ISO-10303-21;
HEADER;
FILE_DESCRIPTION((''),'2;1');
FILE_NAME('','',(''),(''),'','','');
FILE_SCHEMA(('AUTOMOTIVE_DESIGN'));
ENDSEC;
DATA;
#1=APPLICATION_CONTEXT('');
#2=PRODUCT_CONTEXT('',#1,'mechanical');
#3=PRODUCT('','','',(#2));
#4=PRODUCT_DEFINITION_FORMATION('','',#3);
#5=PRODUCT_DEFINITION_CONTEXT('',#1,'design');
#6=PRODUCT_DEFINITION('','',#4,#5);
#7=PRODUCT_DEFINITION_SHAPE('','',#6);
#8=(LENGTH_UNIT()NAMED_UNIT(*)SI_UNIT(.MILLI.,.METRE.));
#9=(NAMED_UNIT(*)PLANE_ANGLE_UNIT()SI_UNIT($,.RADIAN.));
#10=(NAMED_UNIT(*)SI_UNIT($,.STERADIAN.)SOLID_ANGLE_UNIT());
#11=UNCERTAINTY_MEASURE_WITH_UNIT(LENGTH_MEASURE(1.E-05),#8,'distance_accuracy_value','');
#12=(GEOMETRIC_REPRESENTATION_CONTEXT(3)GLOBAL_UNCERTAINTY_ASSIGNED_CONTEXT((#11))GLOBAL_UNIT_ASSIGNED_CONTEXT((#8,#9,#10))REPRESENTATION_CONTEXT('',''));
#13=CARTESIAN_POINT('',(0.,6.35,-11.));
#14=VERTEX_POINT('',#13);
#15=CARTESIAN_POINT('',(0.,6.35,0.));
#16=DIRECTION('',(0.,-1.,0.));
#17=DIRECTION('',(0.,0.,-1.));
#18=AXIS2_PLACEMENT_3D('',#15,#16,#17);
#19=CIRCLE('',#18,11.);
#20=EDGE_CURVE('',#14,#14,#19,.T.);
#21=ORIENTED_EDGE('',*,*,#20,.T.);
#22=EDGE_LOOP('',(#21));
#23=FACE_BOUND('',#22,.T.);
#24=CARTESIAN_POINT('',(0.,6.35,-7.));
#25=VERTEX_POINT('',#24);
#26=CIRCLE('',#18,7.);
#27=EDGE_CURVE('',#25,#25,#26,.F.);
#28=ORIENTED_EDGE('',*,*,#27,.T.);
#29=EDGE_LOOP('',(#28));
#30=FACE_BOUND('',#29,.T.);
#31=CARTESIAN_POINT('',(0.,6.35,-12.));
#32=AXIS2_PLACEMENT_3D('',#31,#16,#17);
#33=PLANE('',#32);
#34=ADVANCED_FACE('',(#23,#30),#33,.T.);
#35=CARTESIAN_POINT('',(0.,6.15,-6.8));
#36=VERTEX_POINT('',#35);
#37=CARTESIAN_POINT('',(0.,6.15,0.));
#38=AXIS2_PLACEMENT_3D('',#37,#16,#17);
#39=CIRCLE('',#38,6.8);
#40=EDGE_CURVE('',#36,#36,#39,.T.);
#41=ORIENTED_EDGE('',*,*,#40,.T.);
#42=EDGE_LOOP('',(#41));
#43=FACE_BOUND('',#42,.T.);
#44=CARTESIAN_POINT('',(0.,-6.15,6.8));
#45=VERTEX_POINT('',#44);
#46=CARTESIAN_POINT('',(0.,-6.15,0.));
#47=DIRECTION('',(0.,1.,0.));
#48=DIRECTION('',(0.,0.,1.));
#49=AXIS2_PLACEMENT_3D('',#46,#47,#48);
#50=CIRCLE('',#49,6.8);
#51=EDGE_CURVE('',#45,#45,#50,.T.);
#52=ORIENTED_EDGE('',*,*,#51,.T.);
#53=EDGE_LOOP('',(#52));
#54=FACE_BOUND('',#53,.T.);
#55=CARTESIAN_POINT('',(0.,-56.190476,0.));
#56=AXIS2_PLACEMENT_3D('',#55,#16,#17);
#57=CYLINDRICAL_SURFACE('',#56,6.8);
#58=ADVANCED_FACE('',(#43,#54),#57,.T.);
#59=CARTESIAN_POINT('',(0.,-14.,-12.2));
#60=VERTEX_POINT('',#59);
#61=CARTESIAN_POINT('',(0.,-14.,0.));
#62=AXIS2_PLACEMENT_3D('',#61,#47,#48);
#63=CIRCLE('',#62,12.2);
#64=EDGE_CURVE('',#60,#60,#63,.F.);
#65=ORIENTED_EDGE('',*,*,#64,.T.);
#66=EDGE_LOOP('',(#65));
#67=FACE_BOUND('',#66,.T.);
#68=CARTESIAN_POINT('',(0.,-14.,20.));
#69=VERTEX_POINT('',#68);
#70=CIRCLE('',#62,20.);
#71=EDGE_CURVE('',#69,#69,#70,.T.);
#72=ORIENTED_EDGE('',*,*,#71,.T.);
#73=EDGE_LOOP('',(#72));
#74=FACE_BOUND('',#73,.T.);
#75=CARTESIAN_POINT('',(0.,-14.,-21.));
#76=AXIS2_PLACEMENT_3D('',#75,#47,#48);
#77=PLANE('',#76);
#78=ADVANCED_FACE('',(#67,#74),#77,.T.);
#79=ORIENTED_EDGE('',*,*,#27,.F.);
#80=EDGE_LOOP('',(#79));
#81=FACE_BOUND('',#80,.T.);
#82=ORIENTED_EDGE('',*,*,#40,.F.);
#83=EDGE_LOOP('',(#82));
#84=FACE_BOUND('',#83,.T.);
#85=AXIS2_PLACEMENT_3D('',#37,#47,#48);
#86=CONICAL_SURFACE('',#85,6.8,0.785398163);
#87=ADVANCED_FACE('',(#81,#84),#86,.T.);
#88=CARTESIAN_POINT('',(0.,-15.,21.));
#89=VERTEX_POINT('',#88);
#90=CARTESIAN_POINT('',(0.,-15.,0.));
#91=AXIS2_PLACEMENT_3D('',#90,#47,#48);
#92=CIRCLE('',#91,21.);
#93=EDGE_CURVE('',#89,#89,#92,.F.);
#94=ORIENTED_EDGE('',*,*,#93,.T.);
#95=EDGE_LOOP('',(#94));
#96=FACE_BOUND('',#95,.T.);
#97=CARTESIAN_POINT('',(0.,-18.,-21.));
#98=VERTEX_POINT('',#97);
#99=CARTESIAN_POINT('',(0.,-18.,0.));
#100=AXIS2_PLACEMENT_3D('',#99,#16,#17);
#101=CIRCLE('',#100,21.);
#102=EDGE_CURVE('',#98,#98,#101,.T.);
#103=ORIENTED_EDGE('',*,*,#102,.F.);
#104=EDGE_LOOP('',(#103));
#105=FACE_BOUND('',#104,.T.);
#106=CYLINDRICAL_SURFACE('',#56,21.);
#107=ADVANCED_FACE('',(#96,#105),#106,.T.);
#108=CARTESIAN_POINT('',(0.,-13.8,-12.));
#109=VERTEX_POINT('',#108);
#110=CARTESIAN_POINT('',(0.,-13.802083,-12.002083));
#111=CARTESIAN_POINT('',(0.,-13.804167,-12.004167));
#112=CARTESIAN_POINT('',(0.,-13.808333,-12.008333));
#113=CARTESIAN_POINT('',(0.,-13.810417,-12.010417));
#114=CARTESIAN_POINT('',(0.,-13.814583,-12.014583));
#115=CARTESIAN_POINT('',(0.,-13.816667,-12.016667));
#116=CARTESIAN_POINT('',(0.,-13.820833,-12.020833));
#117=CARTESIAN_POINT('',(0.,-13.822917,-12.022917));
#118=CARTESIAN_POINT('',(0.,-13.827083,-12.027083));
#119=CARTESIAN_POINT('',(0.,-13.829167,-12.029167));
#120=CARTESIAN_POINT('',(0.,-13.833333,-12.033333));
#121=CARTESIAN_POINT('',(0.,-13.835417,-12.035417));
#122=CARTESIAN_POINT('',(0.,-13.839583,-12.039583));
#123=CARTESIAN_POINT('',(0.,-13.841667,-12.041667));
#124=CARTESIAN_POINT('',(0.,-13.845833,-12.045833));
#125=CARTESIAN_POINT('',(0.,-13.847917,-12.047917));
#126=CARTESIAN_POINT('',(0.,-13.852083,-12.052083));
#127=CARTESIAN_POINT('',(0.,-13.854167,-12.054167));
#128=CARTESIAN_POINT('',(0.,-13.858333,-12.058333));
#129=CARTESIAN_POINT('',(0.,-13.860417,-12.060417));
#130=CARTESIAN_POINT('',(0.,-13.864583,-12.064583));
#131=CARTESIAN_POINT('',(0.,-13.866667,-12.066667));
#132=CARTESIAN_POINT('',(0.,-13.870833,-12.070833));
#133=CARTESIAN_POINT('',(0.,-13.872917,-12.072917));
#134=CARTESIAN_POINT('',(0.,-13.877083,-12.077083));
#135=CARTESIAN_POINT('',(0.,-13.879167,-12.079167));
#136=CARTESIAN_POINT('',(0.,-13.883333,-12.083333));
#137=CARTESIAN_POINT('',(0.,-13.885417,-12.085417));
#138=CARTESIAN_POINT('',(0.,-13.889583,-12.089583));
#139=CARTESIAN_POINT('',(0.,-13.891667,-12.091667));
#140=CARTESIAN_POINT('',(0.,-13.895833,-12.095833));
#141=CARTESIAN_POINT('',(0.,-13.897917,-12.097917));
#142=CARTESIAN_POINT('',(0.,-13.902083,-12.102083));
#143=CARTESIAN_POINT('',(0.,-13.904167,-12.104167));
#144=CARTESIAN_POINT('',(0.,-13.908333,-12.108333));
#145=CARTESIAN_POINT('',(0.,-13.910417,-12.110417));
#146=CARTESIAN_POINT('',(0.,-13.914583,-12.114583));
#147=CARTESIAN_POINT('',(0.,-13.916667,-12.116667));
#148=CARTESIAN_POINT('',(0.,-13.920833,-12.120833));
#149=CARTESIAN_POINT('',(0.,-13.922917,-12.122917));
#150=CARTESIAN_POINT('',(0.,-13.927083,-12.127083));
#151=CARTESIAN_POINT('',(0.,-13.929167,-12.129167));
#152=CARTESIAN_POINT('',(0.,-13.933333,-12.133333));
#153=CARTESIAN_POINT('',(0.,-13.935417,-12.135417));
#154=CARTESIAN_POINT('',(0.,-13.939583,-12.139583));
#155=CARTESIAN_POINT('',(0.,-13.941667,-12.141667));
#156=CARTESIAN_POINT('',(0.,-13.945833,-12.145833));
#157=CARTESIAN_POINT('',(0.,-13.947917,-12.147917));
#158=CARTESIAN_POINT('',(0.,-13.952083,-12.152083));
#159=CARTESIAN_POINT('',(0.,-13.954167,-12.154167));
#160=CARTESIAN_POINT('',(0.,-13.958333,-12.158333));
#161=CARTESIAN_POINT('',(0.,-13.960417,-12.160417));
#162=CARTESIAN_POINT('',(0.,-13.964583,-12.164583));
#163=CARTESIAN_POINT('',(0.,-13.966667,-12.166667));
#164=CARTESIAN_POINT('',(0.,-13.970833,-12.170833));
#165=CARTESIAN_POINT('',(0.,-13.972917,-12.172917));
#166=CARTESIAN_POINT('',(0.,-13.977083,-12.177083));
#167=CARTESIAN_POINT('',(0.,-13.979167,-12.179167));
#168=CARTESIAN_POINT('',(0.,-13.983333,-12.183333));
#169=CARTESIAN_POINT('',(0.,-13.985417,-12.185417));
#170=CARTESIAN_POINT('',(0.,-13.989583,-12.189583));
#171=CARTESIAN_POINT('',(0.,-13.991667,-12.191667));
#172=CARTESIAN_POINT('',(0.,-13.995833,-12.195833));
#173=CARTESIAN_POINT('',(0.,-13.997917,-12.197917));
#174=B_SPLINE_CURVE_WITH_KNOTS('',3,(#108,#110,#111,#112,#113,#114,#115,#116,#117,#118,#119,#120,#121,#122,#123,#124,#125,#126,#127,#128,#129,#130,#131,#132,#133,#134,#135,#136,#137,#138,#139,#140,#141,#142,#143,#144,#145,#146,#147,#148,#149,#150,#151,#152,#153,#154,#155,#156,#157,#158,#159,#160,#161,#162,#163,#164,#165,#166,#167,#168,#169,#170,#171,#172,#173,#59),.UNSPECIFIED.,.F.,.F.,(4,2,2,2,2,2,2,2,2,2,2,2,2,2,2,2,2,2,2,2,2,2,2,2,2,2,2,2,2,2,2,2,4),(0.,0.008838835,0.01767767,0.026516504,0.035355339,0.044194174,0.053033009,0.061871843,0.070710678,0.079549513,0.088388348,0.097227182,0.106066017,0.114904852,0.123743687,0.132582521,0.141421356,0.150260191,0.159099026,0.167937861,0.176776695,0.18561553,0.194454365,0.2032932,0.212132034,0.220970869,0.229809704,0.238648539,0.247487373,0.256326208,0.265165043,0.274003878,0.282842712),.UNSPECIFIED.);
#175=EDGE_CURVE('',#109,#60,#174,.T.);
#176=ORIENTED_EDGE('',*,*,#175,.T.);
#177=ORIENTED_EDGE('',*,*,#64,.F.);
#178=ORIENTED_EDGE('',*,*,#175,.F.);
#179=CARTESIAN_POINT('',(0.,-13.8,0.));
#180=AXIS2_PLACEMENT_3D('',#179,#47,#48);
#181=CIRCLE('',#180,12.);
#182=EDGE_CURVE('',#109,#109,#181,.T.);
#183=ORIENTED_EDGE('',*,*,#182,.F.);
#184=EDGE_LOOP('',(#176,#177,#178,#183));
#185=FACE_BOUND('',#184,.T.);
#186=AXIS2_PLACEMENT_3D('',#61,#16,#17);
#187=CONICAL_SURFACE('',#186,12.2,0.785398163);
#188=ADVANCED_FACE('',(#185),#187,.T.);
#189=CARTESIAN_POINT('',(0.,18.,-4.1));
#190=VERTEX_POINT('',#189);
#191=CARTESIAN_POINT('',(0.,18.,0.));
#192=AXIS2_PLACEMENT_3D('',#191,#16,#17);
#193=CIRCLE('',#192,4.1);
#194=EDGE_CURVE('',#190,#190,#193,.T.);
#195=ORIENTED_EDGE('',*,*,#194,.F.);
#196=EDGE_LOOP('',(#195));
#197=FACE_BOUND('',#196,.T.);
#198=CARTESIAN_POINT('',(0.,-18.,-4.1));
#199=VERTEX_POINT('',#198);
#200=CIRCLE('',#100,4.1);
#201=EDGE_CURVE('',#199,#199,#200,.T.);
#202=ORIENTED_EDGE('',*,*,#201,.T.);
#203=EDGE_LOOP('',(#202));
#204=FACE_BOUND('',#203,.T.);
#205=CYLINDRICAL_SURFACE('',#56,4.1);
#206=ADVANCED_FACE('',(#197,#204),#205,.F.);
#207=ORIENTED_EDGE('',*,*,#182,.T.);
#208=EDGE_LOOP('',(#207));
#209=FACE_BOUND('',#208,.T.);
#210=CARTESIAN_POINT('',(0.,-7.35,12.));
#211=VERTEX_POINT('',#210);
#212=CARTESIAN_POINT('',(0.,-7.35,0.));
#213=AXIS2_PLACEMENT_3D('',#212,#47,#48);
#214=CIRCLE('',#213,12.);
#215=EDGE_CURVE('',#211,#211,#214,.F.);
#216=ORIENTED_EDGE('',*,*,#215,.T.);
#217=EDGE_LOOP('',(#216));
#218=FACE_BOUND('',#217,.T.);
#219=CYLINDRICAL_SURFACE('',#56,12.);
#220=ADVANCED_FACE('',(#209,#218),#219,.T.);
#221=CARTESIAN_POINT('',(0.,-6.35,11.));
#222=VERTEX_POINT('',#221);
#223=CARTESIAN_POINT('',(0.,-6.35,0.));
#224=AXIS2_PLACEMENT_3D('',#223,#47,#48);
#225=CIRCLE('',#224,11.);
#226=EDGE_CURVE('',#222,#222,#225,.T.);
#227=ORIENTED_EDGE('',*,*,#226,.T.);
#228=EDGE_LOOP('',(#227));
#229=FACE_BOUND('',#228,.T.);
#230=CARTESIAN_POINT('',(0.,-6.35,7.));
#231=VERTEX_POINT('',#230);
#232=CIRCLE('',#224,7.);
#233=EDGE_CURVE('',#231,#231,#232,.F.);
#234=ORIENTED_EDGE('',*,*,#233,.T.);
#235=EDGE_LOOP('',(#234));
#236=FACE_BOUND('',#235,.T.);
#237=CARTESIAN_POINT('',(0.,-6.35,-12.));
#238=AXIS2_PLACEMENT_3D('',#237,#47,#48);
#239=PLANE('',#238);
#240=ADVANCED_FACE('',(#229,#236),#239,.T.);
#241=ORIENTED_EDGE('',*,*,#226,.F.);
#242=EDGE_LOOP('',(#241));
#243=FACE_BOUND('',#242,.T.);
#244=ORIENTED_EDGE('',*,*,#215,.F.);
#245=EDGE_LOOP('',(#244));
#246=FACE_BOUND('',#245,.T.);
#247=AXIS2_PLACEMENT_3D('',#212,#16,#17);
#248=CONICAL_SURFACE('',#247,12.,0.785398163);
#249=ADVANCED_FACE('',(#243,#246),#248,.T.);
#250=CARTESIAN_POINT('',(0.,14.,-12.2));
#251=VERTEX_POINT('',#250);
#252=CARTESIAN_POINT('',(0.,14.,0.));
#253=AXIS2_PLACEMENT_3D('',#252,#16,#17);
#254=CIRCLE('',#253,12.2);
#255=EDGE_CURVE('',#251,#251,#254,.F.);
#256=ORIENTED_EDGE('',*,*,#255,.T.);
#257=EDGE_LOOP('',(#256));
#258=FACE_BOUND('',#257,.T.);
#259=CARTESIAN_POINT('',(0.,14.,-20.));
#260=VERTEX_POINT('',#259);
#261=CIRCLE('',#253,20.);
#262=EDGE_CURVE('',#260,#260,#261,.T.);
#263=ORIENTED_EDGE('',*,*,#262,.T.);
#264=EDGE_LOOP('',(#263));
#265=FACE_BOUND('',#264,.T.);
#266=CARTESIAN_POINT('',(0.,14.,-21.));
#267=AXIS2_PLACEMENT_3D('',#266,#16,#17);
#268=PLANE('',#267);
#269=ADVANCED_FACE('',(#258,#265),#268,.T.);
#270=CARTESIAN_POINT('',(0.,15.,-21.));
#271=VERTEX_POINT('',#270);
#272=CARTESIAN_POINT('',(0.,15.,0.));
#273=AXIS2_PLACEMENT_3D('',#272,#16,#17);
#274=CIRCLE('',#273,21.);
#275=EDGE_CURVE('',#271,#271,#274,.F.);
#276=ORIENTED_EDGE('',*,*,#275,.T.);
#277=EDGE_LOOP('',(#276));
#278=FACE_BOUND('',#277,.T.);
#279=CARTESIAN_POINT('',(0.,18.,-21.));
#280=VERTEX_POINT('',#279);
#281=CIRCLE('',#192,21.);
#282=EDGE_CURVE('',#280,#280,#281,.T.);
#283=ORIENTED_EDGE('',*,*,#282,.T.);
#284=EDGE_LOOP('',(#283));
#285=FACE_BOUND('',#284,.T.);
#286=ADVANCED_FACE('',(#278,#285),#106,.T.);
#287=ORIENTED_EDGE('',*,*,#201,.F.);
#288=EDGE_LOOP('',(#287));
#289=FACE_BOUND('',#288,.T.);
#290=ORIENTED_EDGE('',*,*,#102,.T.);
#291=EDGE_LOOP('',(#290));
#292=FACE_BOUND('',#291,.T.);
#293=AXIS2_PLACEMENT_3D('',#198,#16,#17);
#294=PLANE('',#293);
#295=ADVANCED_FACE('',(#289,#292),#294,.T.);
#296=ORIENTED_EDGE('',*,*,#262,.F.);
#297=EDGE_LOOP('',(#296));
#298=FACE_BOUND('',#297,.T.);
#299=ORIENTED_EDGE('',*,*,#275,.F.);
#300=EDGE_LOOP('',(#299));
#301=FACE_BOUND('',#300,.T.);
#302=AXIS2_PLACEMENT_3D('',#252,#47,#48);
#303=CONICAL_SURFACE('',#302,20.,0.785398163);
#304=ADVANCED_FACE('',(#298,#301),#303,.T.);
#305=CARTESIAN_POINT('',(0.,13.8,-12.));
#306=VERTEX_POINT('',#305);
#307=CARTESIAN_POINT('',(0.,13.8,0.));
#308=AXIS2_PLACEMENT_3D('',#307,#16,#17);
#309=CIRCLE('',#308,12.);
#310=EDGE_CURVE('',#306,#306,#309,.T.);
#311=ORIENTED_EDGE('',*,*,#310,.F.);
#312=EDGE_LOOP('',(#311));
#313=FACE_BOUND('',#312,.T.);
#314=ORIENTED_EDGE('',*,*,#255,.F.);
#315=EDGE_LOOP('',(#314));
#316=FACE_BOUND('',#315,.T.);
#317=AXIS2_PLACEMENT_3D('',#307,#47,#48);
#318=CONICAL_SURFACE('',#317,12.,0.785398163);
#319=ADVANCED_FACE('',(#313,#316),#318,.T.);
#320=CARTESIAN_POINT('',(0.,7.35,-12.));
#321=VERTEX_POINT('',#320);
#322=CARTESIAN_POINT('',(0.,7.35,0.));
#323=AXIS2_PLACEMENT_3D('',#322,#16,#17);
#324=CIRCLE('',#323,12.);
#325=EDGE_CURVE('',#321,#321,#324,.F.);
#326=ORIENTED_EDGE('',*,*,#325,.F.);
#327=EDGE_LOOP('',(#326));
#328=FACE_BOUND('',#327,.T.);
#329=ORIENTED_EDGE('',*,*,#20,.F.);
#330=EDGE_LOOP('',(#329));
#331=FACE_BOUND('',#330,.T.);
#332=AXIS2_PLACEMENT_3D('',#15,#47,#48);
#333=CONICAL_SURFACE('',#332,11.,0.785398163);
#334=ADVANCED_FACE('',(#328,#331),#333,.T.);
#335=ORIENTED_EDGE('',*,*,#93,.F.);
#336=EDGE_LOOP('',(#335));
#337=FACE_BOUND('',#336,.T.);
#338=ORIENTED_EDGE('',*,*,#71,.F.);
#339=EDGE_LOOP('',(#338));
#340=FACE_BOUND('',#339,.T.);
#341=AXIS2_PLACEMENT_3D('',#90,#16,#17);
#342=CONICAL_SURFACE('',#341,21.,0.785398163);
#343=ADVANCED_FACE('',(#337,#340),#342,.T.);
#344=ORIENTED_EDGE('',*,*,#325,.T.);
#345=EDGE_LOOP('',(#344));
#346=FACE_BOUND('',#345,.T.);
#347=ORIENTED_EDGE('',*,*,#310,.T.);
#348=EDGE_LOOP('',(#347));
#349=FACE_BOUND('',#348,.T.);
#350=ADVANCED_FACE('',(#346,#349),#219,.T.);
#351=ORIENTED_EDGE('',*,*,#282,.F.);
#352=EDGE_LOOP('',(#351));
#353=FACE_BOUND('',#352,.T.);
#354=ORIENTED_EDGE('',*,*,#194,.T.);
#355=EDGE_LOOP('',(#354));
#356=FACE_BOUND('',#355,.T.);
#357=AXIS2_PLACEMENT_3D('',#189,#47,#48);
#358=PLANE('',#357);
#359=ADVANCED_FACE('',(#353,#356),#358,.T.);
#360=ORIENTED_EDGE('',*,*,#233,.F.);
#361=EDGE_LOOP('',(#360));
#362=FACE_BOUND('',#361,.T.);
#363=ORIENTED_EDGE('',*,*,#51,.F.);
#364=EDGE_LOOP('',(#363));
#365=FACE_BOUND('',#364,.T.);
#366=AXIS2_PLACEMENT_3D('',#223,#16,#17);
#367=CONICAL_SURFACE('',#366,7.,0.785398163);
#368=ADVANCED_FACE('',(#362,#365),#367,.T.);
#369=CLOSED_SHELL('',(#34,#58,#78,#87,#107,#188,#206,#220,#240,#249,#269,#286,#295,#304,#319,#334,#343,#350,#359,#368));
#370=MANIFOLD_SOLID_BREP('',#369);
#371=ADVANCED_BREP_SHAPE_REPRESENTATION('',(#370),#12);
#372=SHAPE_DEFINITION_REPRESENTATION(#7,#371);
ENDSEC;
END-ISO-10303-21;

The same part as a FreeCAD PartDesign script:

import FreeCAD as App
import Part
import Sketcher

V = App.Vector
Q = App.Units.Quantity


def edges_at(feature, points):
    """Names of the edges that pass closest to the given points."""
    edges = feature.Shape.Edges
    near = lambda p: min(range(len(edges)), key=lambda i: edges[i].distToShape(Part.Vertex(*p))[0])
    return sorted({f"Edge{near(p) + 1}" for p in points})


def add_polygon(sketch, points):
    """Adds a closed chain of lines whose ends are joined by coincident constraints."""
    first, n = sketch.GeometryCount, len(points)
    for a, b in zip(points, points[1:] + points[:1]):
        sketch.addGeometry(Part.LineSegment(App.Vector(*a, 0), App.Vector(*b, 0)), False)
    for i in range(n):
        sketch.addConstraint(Sketcher.Constraint("Coincident", first + i, 2, first + (i + 1) % n, 1))

doc = App.newDocument("Part")
body = doc.addObject("PartDesign::Body", "Body")

sketch1 = doc.addObject("Sketcher::SketchObject", "Sketch")
body.addObject(sketch1)
sketch1.AttachmentSupport = (doc.YZ_Plane, [""])
sketch1.MapMode = "FlatFace"
add_polygon(sketch1, [(18, -21), (18, -4.1), (-18, -4.1), (-18, -21), (-14, -21), (-14, -12), (-6.3, -12), (-6.3, -6.8), (6.3, -6.8), (6.3, -12), (14, -12), (14, -21)])
sketch1.addConstraint(Sketcher.Constraint("Vertical", 0))
sketch1.addConstraint(Sketcher.Constraint("Horizontal", 1))
sketch1.addConstraint(Sketcher.Constraint("Vertical", 2))
sketch1.addConstraint(Sketcher.Constraint("Horizontal", 3))
sketch1.addConstraint(Sketcher.Constraint("Vertical", 4))
sketch1.addConstraint(Sketcher.Constraint("Horizontal", 5))
sketch1.addConstraint(Sketcher.Constraint("Vertical", 6))
sketch1.addConstraint(Sketcher.Constraint("Horizontal", 7))
sketch1.addConstraint(Sketcher.Constraint("Vertical", 8))
sketch1.addConstraint(Sketcher.Constraint("Horizontal", 9))
sketch1.addConstraint(Sketcher.Constraint("Vertical", 10))
sketch1.addConstraint(Sketcher.Constraint("Horizontal", 11))
sketch1.addConstraint(Sketcher.Constraint("Symmetric", 5, 2, 8, 2, -2))
sketch1.addConstraint(Sketcher.Constraint("Symmetric", 3, 2, 10, 2, -2))
sketch1.addConstraint(Sketcher.Constraint("Equal", 3, 11))
sketch1.addConstraint(Sketcher.Constraint("DistanceX", 1, 2, 1, 1, Q("36 mm")))
sketch1.addConstraint(Sketcher.Constraint("DistanceX", 3, 1, 3, 2, Q("4 mm")))
sketch1.addConstraint(Sketcher.Constraint("DistanceY", 4, 1, 4, 2, Q("9 mm")))
sketch1.addConstraint(Sketcher.Constraint("DistanceX", 7, 1, 7, 2, Q("12.7 mm")))
sketch1.addConstraint(Sketcher.Constraint("DistanceY", 0, 1, 0, 2, Q("16.9 mm")))
sketch1.addConstraint(Sketcher.Constraint("DistanceY", 6, 1, 6, 2, Q("5.2 mm")))
sketch1.addConstraint(Sketcher.Constraint("DistanceY", 2, 2, -1, 1, Q("21 mm")))
revolution = doc.addObject("PartDesign::Revolution", "Revolution")
body.addObject(revolution)
revolution.Profile = sketch1
revolution.ReferenceAxis = (sketch1, ["H_Axis"])
revolution.Angle = 360
doc.recompute()

chamfer = doc.addObject("PartDesign::Chamfer", "Chamfer")
body.addObject(chamfer)
chamfer.Base = (revolution, edges_at(revolution, [
    (0, -14, 21),
    (0, 14, 21),
    (0, 6.35, 12),
    (0, -6.35, 12),
]))
chamfer.Size = 1
doc.recompute()

chamfer2 = doc.addObject("PartDesign::Chamfer", "Chamfer001")
body.addObject(chamfer2)
chamfer2.Base = (chamfer, edges_at(chamfer, [
    (0, 14, 12),
    (0, 6.35, 6.8),
    (0, -6.35, 6.8),
    (0, -14, 12),
]))
chamfer2.Size = 0.2

doc.recompute()
